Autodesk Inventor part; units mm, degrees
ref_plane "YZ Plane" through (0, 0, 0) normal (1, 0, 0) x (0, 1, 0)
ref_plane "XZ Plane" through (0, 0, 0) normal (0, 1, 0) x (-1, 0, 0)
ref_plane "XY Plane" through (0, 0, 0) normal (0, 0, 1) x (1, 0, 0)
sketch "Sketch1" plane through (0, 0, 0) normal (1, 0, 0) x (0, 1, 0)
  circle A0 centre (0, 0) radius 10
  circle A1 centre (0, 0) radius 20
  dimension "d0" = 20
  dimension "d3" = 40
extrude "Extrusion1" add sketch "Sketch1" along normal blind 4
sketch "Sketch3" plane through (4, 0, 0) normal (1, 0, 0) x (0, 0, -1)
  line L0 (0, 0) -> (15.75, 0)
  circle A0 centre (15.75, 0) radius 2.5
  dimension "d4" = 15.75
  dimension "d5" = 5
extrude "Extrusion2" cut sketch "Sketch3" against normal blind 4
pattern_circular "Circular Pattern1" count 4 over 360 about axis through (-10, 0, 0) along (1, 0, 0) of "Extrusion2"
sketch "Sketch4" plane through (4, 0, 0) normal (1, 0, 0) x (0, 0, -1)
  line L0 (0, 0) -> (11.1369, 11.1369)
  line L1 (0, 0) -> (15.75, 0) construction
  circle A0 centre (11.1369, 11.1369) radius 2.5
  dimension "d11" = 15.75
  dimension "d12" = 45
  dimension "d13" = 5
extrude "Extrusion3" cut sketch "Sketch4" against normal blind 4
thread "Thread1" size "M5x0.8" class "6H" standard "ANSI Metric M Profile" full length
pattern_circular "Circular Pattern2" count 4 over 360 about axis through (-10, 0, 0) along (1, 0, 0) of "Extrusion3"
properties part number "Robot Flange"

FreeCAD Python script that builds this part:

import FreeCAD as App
import Part
import Sketcher

doc = App.newDocument("Part")
body = doc.addObject("PartDesign::Body", "Body")

sketch1 = body.newObject("Sketcher::SketchObject", "Sketch")
sketch1.AttachmentSupport = (doc.getObject("YZ_Plane"), [""])
sketch1.MapMode = "FlatFace"
sketch1.addGeometry([
    Part.Circle(App.Vector(0, 0, 0), App.Vector(0, 0, 1), 20),
    Part.Circle(App.Vector(0, 0, 0), App.Vector(0, 0, 1), 10),
], False)
sketch1.addConstraint([
    Sketcher.Constraint("Coincident", 0, 3, -1, 1),
    Sketcher.Constraint("Coincident", 1, 3, -1, 1),
    Sketcher.Constraint("Diameter", 0, 40.0),
    Sketcher.Constraint("Diameter", 1, 20.0),
])
pad1 = body.newObject("PartDesign::Pad", "Pad")
pad1.Profile = sketch1
pad1.Length = 4

sketch2 = body.newObject("Sketcher::SketchObject", "Sketch001")
sketch2.AttachmentSupport = (doc.getObject("YZ_Plane"), [""])
sketch2.MapMode = "FlatFace"
sketch2.AttachmentOffset = App.Placement(App.Vector(0, 0, 4), App.Rotation())
sketch2.addGeometry(Part.Circle(App.Vector(0, -15.75, 0), App.Vector(0, 0, 1), 2.5), False)
sketch2.addConstraint([
    Sketcher.Constraint("PointOnObject", 0, 3, -2),
    Sketcher.Constraint("Diameter", 0, 5.0),
    Sketcher.Constraint("DistanceY", 0, 3, -1, 1, 15.75),
])
pocket1 = body.newObject("PartDesign::Pocket", "Pocket")
pocket1.Profile = sketch2
pocket1.Length = 4
doc.recompute()

polarpattern = body.newObject("PartDesign::PolarPattern", "PolarPattern")
polarpattern.Originals = [pocket1]
polarpattern.Axis = (doc.getObject("X_Axis"), [""])
polarpattern.Angle = 360
polarpattern.Occurrences = 4
body.Tip = polarpattern

sketch3 = body.newObject("Sketcher::SketchObject", "Sketch002")
sketch3.AttachmentSupport = (doc.getObject("YZ_Plane"), [""])
sketch3.MapMode = "FlatFace"
sketch3.AttachmentOffset = App.Placement(App.Vector(0, 0, 4), App.Rotation())
sketch3.addGeometry(Part.Circle(App.Vector(11.1369, -11.1369, 0), App.Vector(0, 0, 1), 2.5), False)
sketch3.addConstraint([
    Sketcher.Constraint("Diameter", 0, 5.0),
    Sketcher.Constraint("DistanceX", -1, 1, 0, 3, 11.137),
    Sketcher.Constraint("DistanceY", 0, 3, -1, 1, 11.137),
])
pocket2 = body.newObject("PartDesign::Pocket", "Pocket001")
pocket2.Profile = sketch3
pocket2.Length = 4
doc.recompute()

polarpattern2 = body.newObject("PartDesign::PolarPattern", "PolarPattern001")
polarpattern2.Originals = [pocket2]
polarpattern2.Axis = (doc.getObject("X_Axis"), [""])
polarpattern2.Angle = 360
polarpattern2.Occurrences = 4
body.Tip = polarpattern2

doc.recompute()
